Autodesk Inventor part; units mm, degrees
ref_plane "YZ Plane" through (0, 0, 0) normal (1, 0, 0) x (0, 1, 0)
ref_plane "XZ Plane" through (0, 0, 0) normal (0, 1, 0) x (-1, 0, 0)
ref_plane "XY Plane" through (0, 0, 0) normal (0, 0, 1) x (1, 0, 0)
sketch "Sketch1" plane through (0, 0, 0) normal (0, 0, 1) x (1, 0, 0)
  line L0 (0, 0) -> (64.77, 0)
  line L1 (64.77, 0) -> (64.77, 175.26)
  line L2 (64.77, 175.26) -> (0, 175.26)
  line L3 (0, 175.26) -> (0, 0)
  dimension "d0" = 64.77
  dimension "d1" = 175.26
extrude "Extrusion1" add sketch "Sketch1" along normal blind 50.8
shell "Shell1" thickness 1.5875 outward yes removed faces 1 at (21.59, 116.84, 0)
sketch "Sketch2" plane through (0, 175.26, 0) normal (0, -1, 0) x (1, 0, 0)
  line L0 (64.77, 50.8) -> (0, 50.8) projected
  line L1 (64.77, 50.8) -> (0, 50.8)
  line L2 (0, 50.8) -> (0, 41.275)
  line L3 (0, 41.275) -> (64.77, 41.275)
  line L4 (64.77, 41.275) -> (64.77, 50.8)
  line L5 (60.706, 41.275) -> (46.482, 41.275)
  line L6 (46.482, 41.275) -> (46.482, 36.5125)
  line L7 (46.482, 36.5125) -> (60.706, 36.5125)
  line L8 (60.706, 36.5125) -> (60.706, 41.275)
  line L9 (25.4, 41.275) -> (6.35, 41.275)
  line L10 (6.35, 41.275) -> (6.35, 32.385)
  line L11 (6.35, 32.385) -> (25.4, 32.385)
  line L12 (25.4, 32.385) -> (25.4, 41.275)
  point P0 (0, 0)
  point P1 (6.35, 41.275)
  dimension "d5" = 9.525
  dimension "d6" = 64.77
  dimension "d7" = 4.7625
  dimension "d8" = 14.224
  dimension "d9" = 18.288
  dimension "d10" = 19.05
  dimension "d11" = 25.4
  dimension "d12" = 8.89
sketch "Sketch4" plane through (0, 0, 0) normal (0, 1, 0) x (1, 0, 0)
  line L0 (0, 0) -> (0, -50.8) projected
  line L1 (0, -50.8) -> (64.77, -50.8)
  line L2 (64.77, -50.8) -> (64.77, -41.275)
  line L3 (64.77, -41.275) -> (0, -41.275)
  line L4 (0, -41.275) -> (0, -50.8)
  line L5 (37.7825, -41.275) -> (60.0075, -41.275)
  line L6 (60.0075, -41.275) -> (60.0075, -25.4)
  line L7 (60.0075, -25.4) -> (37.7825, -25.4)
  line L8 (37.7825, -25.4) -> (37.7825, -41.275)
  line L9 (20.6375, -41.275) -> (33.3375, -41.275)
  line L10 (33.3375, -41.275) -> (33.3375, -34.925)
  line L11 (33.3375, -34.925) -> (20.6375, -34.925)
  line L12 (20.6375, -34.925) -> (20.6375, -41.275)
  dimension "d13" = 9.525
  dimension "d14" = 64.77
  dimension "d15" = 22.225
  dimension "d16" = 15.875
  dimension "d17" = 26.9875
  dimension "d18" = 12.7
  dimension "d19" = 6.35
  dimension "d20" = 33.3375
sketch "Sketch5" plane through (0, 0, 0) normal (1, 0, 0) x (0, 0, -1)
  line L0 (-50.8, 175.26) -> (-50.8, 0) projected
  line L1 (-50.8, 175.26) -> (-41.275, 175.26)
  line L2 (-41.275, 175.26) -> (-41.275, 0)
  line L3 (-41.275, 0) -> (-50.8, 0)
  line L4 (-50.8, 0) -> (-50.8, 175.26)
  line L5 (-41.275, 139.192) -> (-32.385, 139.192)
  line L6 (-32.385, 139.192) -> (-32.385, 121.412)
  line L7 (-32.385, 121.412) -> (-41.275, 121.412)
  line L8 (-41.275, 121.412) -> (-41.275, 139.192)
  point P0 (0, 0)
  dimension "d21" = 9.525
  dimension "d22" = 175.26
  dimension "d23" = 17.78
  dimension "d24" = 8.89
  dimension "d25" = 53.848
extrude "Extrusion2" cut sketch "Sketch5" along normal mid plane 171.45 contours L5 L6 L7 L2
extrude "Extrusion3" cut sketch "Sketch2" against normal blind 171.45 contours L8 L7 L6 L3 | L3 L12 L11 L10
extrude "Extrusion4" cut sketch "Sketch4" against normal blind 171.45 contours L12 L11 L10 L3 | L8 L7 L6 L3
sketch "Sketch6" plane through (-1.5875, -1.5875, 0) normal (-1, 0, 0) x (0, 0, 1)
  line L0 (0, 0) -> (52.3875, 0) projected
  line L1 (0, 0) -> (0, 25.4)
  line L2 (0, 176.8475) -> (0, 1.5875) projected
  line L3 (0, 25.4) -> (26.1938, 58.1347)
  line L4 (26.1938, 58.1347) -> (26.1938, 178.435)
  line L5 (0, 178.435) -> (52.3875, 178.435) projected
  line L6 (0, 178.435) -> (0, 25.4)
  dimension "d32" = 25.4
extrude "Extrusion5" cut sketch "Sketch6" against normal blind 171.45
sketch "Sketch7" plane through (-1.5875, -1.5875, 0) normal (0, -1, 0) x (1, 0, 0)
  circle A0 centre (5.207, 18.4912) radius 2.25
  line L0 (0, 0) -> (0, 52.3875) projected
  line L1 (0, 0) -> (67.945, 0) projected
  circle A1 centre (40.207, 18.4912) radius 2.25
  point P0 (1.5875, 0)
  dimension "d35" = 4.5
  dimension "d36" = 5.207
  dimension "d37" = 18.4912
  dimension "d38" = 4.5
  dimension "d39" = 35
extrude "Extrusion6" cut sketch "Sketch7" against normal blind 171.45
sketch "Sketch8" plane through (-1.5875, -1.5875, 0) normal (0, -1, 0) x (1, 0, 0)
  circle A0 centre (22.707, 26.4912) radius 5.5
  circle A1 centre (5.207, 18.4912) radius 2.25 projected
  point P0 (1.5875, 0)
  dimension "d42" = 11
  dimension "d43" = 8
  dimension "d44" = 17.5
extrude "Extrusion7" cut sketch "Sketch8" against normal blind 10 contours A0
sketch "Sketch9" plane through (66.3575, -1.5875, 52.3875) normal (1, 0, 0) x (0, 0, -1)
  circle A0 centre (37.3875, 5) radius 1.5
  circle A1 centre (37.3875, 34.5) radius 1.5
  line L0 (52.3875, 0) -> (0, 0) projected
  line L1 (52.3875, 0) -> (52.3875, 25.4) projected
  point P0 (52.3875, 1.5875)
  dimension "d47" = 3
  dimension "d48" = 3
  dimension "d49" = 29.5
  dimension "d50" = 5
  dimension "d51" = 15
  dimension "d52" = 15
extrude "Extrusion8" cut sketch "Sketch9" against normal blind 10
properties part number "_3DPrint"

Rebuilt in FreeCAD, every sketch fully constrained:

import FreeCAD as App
import Part
import Sketcher
Q = App.Units.Quantity


def faces_at(feature, points):
    """Names of the faces that lie closest to the given points."""
    faces = feature.Shape.Faces
    near = lambda p: min(range(len(faces)), key=lambda i: faces[i].distToShape(Part.Vertex(*p))[0])
    return sorted({f"Face{near(p) + 1}" for p in points})

doc = App.newDocument("Part")
params = doc.addObject("Spreadsheet::Sheet", "Params")
for row, (alias, value) in enumerate([
    ("sketch1_height", "6.9 in"),
    ("sketch1_width", "2.55 in"),
    ("pad1_length", "2 in"),
    ("thickness_wall", "0.0625 in"),
    ("sketch2_width", "0.7 in"),
    ("sketch2_height", "0.35 in"),
    ("pocket1_length", "6.75 in"),
    ("sketch3_width", "0.56 in"),
    ("sketch3_width2", "0.75 in"),
    ("sketch3_height", "0.35 in"),
    ("sketch3_height2", "0.1875 in"),
    ("pocket2_length", "6.75 in"),
    ("sketch4_width", "0.5 in"),
    ("sketch4_height", "0.25 in"),
    ("sketch4_width2", "0.875 in"),
    ("sketch4_height2", "0.625 in"),
    ("pocket3_length", "6.75 in"),
    ("sketch5_width", "6.025 in"),
    ("sketch5_height", "1.031252 in"),
    ("pocket4_length", "6.75 in"),
    ("pocket5_length", "6.75 in"),
    ("pocket6_length", "0.3937008 in"),
    ("pocket7_length", "0.3937008 in"),
], start=1):
    params.set(f"A{row}", alias)
    params.set(f"B{row}", "=" + value)
    params.setAlias(f"B{row}", alias)

body = doc.addObject("PartDesign::Body", "Body")

# Sketch on XY plane
sketch1 = doc.addObject("Sketcher::SketchObject", "Sketch")
body.addObject(sketch1)
sketch1.AttachmentSupport = (doc.XY_Plane, [""])
sketch1.MapMode = "FlatFace"
sketch1.addGeometry([
    Part.LineSegment(App.Vector(0, 175, 0), App.Vector(0, 0, 0)),
    Part.LineSegment(App.Vector(0, 0, 0), App.Vector(65, 0, 0)),
    Part.LineSegment(App.Vector(65, 0, 0), App.Vector(65, 175, 0)),
    Part.LineSegment(App.Vector(65, 175, 0), App.Vector(0, 175, 0)),
], False)
sketch1.addConstraint([
    Sketcher.Constraint("Coincident", 0, 2, 1, 1),
    Sketcher.Constraint("Coincident", 1, 2, 2, 1),
    Sketcher.Constraint("Coincident", 2, 2, 3, 1),
    Sketcher.Constraint("Coincident", 3, 2, 0, 1),
    Sketcher.Constraint("Vertical", 0),
    Sketcher.Constraint("Horizontal", 1),
    Sketcher.Constraint("Vertical", 2),
    Sketcher.Constraint("Horizontal", 3),
    Sketcher.Constraint("Coincident", 0, 2, -1, 1),
    Sketcher.Constraint("DistanceY", 0, 2, 0, 1, Q("6.9 in")),
    Sketcher.Constraint("DistanceX", 1, 1, 1, 2, Q("2.55 in")),
])
sketch1.setExpression("Constraints[9]", "Params.sketch1_height")
sketch1.setExpression("Constraints[10]", "Params.sketch1_width")
pad1 = doc.addObject("PartDesign::Pad", "Pad")
body.addObject(pad1)
pad1.Profile = sketch1
pad1.setExpression("Length", "Params.pad1_length")
doc.recompute()

thickness = doc.addObject("PartDesign::Thickness", "Thickness")
body.addObject(thickness)
thickness.Base = (pad1, faces_at(pad1, [(21.59, 116.84, 0)]))
thickness.setExpression("Value", "Params.thickness_wall")
thickness.Reversed = False
thickness.Join = "Intersection"

# Sketch on YZ plane
sketch2 = doc.addObject("Sketcher::SketchObject", "Sketch001")
body.addObject(sketch2)
sketch2.AttachmentSupport = (doc.YZ_Plane, [""])
sketch2.MapMode = "FlatFace"
sketch2.addGeometry([
    Part.LineSegment(App.Vector(139, 32, 0), App.Vector(139, 41, 0)),
    Part.LineSegment(App.Vector(139, 41, 0), App.Vector(121, 41, 0)),
    Part.LineSegment(App.Vector(121, 41, 0), App.Vector(121, 32, 0)),
    Part.LineSegment(App.Vector(121, 32, 0), App.Vector(139, 32, 0)),
], False)
sketch2.addConstraint([
    Sketcher.Constraint("Coincident", 0, 2, 1, 1),
    Sketcher.Constraint("Coincident", 1, 2, 2, 1),
    Sketcher.Constraint("Coincident", 2, 2, 3, 1),
    Sketcher.Constraint("Coincident", 3, 2, 0, 1),
    Sketcher.Constraint("Vertical", 0),
    Sketcher.Constraint("Horizontal", 1),
    Sketcher.Constraint("Vertical", 2),
    Sketcher.Constraint("Horizontal", 3),
    Sketcher.Constraint("DistanceX", 1, 2, 1, 1, Q("0.7 in")),
    Sketcher.Constraint("DistanceY", 0, 1, 0, 2, Q("0.35 in")),
    Sketcher.Constraint("DistanceX", -1, 1, 0, 2, Q("5.48 in")),
    Sketcher.Constraint("DistanceY", -1, 1, 0, 2, Q("1.625 in")),
])
sketch2.setExpression("Constraints[8]", "Params.sketch2_width")
sketch2.setExpression("Constraints[9]", "Params.sketch2_height")
pocket1 = doc.addObject("PartDesign::Pocket", "Pocket")
body.addObject(pocket1)
pocket1.Profile = sketch2
pocket1.setExpression("Length", "Params.pocket1_length")
pocket1.Midplane = True

# Sketch on XZ plane
sketch3 = doc.addObject("Sketcher::SketchObject", "Sketch002")
body.addObject(sketch3)
sketch3.AttachmentSupport = (doc.XZ_Plane, [""])
sketch3.MapMode = "FlatFace"
sketch3.AttachmentOffset = App.Placement(App.Vector(0, 0, -6.9 * 25.4), App.Rotation())
sketch3.addGeometry([
    Part.LineSegment(App.Vector(60.7, 36.5, 0), App.Vector(60.7, 41.3, 0)),  # 0
    Part.LineSegment(App.Vector(60.7, 41.3, 0), App.Vector(46.5, 41.3, 0)),  # 1
    Part.LineSegment(App.Vector(46.5, 41.3, 0), App.Vector(46.5, 36.5, 0)),  # 2
    Part.LineSegment(App.Vector(46.5, 36.5, 0), App.Vector(60.7, 36.5, 0)),  # 3
    Part.LineSegment(App.Vector(25.4, 41.3, 0), App.Vector(6.3, 41.3, 0)),  # 4
    Part.LineSegment(App.Vector(6.3, 41.3, 0), App.Vector(6.3, 32.4, 0)),  # 5
    Part.LineSegment(App.Vector(6.3, 32.4, 0), App.Vector(25.4, 32.4, 0)),  # 6
    Part.LineSegment(App.Vector(25.4, 32.4, 0), App.Vector(25.4, 41.3, 0)),  # 7
], False)
sketch3.addConstraint([
    Sketcher.Constraint("Coincident", 0, 2, 1, 1),
    Sketcher.Constraint("Coincident", 1, 2, 2, 1),
    Sketcher.Constraint("Coincident", 2, 2, 3, 1),
    Sketcher.Constraint("Coincident", 3, 2, 0, 1),
    Sketcher.Constraint("Coincident", 4, 2, 5, 1),
    Sketcher.Constraint("Coincident", 5, 2, 6, 1),
    Sketcher.Constraint("Coincident", 6, 2, 7, 1),
    Sketcher.Constraint("Coincident", 7, 2, 4, 1),
    Sketcher.Constraint("Vertical", 0),
    Sketcher.Constraint("Horizontal", 1),
    Sketcher.Constraint("Vertical", 2),
    Sketcher.Constraint("Horizontal", 3),
    Sketcher.Constraint("Horizontal", 4),
    Sketcher.Constraint("Vertical", 5),
    Sketcher.Constraint("Horizontal", 6),
    Sketcher.Constraint("Vertical", 7),
    Sketcher.Constraint("Horizontal", 1, 2, 4, 2),
    Sketcher.Constraint("DistanceX", -1, 1, 6, 2, Q("1 in")),
    Sketcher.Constraint("DistanceX", 1, 2, 1, 1, Q("0.56 in")),
    Sketcher.Constraint("DistanceX", 4, 2, 4, 1, Q("0.75 in")),
    Sketcher.Constraint("DistanceY", 5, 2, 5, 1, Q("0.35 in")),
    Sketcher.Constraint("DistanceY", 0, 1, 0, 2, Q("0.1875 in")),
    Sketcher.Constraint("DistanceX", -1, 1, 0, 2, Q("2.39 in")),
    Sketcher.Constraint("DistanceY", -1, 1, 0, 2, Q("1.625 in")),
])
sketch3.setExpression("Constraints[18]", "Params.sketch3_width")
sketch3.setExpression("Constraints[19]", "Params.sketch3_width2")
sketch3.setExpression("Constraints[20]", "Params.sketch3_height")
sketch3.setExpression("Constraints[21]", "Params.sketch3_height2")
pocket2 = doc.addObject("PartDesign::Pocket", "Pocket001")
body.addObject(pocket2)
pocket2.Profile = sketch3
pocket2.setExpression("Length", "Params.pocket2_length")

# Sketch on XZ plane
sketch4 = doc.addObject("Sketcher::SketchObject", "Sketch003")
body.addObject(sketch4)
sketch4.AttachmentSupport = (doc.XZ_Plane, [""])
sketch4.MapMode = "FlatFace"
sketch4.addGeometry([
    Part.LineSegment(App.Vector(21, 35, 0), App.Vector(21, 41, 0)),  # 0
    Part.LineSegment(App.Vector(21, 41, 0), App.Vector(33, 41, 0)),  # 1
    Part.LineSegment(App.Vector(33, 41, 0), App.Vector(33, 35, 0)),  # 2
    Part.LineSegment(App.Vector(33, 35, 0), App.Vector(21, 35, 0)),  # 3
    Part.LineSegment(App.Vector(38, 25, 0), App.Vector(38, 41, 0)),  # 4
    Part.LineSegment(App.Vector(38, 41, 0), App.Vector(60, 41, 0)),  # 5
    Part.LineSegment(App.Vector(60, 41, 0), App.Vector(60, 25, 0)),  # 6
    Part.LineSegment(App.Vector(60, 25, 0), App.Vector(38, 25, 0)),  # 7
], False)
sketch4.addConstraint([
    Sketcher.Constraint("Coincident", 0, 2, 1, 1),
    Sketcher.Constraint("Coincident", 1, 2, 2, 1),
    Sketcher.Constraint("Coincident", 2, 2, 3, 1),
    Sketcher.Constraint("Coincident", 3, 2, 0, 1),
    Sketcher.Constraint("Coincident", 4, 2, 5, 1),
    Sketcher.Constraint("Coincident", 5, 2, 6, 1),
    Sketcher.Constraint("Coincident", 6, 2, 7, 1),
    Sketcher.Constraint("Coincident", 7, 2, 4, 1),
    Sketcher.Constraint("Vertical", 0),
    Sketcher.Constraint("Horizontal", 1),
    Sketcher.Constraint("Vertical", 2),
    Sketcher.Constraint("Horizontal", 3),
    Sketcher.Constraint("Vertical", 4),
    Sketcher.Constraint("Horizontal", 5),
    Sketcher.Constraint("Vertical", 6),
    Sketcher.Constraint("Horizontal", 7),
    Sketcher.Constraint("Horizontal", 1, 2, 4, 2),
    Sketcher.Constraint("DistanceX", 1, 1, 1, 2, Q("0.5 in")),
    Sketcher.Constraint("DistanceY", 0, 1, 0, 2, Q("0.25 in")),
    Sketcher.Constraint("DistanceX", 5, 1, 5, 2, Q("0.875 in")),
    Sketcher.Constraint("DistanceY", 4, 1, 4, 2, Q("0.625 in")),
    Sketcher.Constraint("DistanceX", -1, 1, 1, 2, Q("1.3125 in")),
    Sketcher.Constraint("DistanceY", -1, 1, 6, 2, Q("1 in")),
    Sketcher.Constraint("DistanceX", 1, 2, 5, 2, Q("1.05 in")),
])
sketch4.setExpression("Constraints[17]", "Params.sketch4_width")
sketch4.setExpression("Constraints[18]", "Params.sketch4_height")
sketch4.setExpression("Constraints[19]", "Params.sketch4_width2")
sketch4.setExpression("Constraints[20]", "Params.sketch4_height2")
pocket3 = doc.addObject("PartDesign::Pocket", "Pocket002")
body.addObject(pocket3)
pocket3.Profile = sketch4
pocket3.setExpression("Length", "Params.pocket3_length")
pocket3.Reversed = True

# Sketch on YZ plane
sketch5 = doc.addObject("Sketcher::SketchObject", "Sketch004")
body.addObject(sketch5)
sketch5.AttachmentSupport = (doc.YZ_Plane, [""])
sketch5.MapMode = "FlatFace"
sketch5.AttachmentOffset = App.Placement(App.Vector(0, 0, -0.0625 * 25.4), App.Rotation())
sketch5.addGeometry([
    Part.LineSegment(App.Vector(177, 0, 0), App.Vector(24, 0, 0)),
    Part.LineSegment(App.Vector(24, 0, 0), App.Vector(57, 26, 0)),
    Part.LineSegment(App.Vector(57, 26, 0), App.Vector(177, 26, 0)),
    Part.LineSegment(App.Vector(177, 26, 0), App.Vector(177, 0, 0)),
], False)
sketch5.addConstraint([
    Sketcher.Constraint("Coincident", 0, 2, 1, 1),
    Sketcher.Constraint("Coincident", 1, 2, 2, 1),
    Sketcher.Constraint("Coincident", 2, 2, 3, 1),
    Sketcher.Constraint("Coincident", 3, 2, 0, 1),
    Sketcher.Constraint("Horizontal", 0),
    Sketcher.Constraint("Horizontal", 2),
    Sketcher.Constraint("Vertical", 3),
    Sketcher.Constraint("PointOnObject", 0, 2, -1),
    Sketcher.Constraint("DistanceX", 0, 2, 0, 1, Q("6.025 in")),
    Sketcher.Constraint("DistanceY", 3, 2, 3, 1, Q("1.031252 in")),
    Sketcher.Constraint("DistanceX", -1, 1, 0, 2, Q("0.9375 in")),
    Sketcher.Constraint("DistanceX", 2, 1, 2, 2, Q("120.3003 mm")),
])
sketch5.setExpression("Constraints[8]", "Params.sketch5_width")
sketch5.setExpression("Constraints[9]", "Params.sketch5_height")
pocket4 = doc.addObject("PartDesign::Pocket", "Pocket003")
body.addObject(pocket4)
pocket4.Profile = sketch5
pocket4.setExpression("Length", "Params.pocket4_length")
pocket4.Reversed = True

# Sketch on XZ plane
sketch6 = doc.addObject("Sketcher::SketchObject", "Sketch005")
body.addObject(sketch6)
sketch6.AttachmentSupport = (doc.XZ_Plane, [""])
sketch6.MapMode = "FlatFace"
sketch6.AttachmentOffset = App.Placement(App.Vector(0, 0, 0.0625 * 25.4), App.Rotation())
sketch6.addGeometry([
    Part.Circle(App.Vector(3.6, 18.5, 0), App.Vector(0, 0, 1), 2.2),
    Part.Circle(App.Vector(38.6, 18.5, 0), App.Vector(0, 0, 1), 2.2),
], False)
sketch6.addConstraint([
    Sketcher.Constraint("Equal", 0, 1),
    Sketcher.Constraint("Horizontal", 0, 3, 1, 3),
    Sketcher.Constraint("Diameter", 0, Q("4.5 mm")),
    Sketcher.Constraint("DistanceY", -1, 1, 0, 3, Q("0.728 in")),
    Sketcher.Constraint("DistanceX", 0, 3, 1, 3, Q("35 mm")),
    Sketcher.Constraint("DistanceX", -1, 1, 0, 3, Q("0.1425 in")),
])
pocket5 = doc.addObject("PartDesign::Pocket", "Pocket004")
body.addObject(pocket5)
pocket5.Profile = sketch6
pocket5.setExpression("Length", "Params.pocket5_length")

# Sketch on XZ plane
sketch7 = doc.addObject("Sketcher::SketchObject", "Sketch006")
body.addObject(sketch7)
sketch7.AttachmentSupport = (doc.XZ_Plane, [""])
sketch7.MapMode = "FlatFace"
sketch7.AttachmentOffset = App.Placement(App.Vector(0, 0, 0.0625 * 25.4), App.Rotation())
sketch7.addGeometry(Part.Circle(App.Vector(21, 26, 0), App.Vector(0, 0, 1), 6), False)
sketch7.addConstraint([
    Sketcher.Constraint("Diameter", 0, Q("11 mm")),
    Sketcher.Constraint("DistanceX", -1, 1, 0, 3, Q("21.1195 mm")),
    Sketcher.Constraint("DistanceY", -1, 1, 0, 3, Q("26.4912 mm")),
])
pocket6 = doc.addObject("PartDesign::Pocket", "Pocket005")
body.addObject(pocket6)
pocket6.Profile = sketch7
pocket6.setExpression("Length", "Params.pocket6_length")

# Sketch on YZ plane
sketch8 = doc.addObject("Sketcher::SketchObject", "Sketch007")
body.addObject(sketch8)
sketch8.AttachmentSupport = (doc.YZ_Plane, [""])
sketch8.MapMode = "FlatFace"
sketch8.AttachmentOffset = App.Placement(App.Vector(0, 0, 2.6125 * 25.4), App.Rotation())
sketch8.addGeometry([
    Part.Circle(App.Vector(3.4, 15, 0), App.Vector(0, 0, 1), 1.5),
    Part.Circle(App.Vector(32.9, 15, 0), App.Vector(0, 0, 1), 1.5),
], False)
sketch8.addConstraint([
    Sketcher.Constraint("Equal", 0, 1),
    Sketcher.Constraint("Horizontal", 0, 3, 1, 3),
    Sketcher.Constraint("Diameter", 0, Q("0.1181 in")),
    Sketcher.Constraint("DistanceY", -1, 1, 0, 3, Q("15 mm")),
    Sketcher.Constraint("DistanceX", 0, 3, 1, 3, Q("29.5 mm")),
    Sketcher.Constraint("DistanceX", -1, 1, 0, 3, Q("3.4125 mm")),
])
pocket7 = doc.addObject("PartDesign::Pocket", "Pocket006")
body.addObject(pocket7)
pocket7.Profile = sketch8
pocket7.setExpression("Length", "Params.pocket7_length")

doc.recompute()
